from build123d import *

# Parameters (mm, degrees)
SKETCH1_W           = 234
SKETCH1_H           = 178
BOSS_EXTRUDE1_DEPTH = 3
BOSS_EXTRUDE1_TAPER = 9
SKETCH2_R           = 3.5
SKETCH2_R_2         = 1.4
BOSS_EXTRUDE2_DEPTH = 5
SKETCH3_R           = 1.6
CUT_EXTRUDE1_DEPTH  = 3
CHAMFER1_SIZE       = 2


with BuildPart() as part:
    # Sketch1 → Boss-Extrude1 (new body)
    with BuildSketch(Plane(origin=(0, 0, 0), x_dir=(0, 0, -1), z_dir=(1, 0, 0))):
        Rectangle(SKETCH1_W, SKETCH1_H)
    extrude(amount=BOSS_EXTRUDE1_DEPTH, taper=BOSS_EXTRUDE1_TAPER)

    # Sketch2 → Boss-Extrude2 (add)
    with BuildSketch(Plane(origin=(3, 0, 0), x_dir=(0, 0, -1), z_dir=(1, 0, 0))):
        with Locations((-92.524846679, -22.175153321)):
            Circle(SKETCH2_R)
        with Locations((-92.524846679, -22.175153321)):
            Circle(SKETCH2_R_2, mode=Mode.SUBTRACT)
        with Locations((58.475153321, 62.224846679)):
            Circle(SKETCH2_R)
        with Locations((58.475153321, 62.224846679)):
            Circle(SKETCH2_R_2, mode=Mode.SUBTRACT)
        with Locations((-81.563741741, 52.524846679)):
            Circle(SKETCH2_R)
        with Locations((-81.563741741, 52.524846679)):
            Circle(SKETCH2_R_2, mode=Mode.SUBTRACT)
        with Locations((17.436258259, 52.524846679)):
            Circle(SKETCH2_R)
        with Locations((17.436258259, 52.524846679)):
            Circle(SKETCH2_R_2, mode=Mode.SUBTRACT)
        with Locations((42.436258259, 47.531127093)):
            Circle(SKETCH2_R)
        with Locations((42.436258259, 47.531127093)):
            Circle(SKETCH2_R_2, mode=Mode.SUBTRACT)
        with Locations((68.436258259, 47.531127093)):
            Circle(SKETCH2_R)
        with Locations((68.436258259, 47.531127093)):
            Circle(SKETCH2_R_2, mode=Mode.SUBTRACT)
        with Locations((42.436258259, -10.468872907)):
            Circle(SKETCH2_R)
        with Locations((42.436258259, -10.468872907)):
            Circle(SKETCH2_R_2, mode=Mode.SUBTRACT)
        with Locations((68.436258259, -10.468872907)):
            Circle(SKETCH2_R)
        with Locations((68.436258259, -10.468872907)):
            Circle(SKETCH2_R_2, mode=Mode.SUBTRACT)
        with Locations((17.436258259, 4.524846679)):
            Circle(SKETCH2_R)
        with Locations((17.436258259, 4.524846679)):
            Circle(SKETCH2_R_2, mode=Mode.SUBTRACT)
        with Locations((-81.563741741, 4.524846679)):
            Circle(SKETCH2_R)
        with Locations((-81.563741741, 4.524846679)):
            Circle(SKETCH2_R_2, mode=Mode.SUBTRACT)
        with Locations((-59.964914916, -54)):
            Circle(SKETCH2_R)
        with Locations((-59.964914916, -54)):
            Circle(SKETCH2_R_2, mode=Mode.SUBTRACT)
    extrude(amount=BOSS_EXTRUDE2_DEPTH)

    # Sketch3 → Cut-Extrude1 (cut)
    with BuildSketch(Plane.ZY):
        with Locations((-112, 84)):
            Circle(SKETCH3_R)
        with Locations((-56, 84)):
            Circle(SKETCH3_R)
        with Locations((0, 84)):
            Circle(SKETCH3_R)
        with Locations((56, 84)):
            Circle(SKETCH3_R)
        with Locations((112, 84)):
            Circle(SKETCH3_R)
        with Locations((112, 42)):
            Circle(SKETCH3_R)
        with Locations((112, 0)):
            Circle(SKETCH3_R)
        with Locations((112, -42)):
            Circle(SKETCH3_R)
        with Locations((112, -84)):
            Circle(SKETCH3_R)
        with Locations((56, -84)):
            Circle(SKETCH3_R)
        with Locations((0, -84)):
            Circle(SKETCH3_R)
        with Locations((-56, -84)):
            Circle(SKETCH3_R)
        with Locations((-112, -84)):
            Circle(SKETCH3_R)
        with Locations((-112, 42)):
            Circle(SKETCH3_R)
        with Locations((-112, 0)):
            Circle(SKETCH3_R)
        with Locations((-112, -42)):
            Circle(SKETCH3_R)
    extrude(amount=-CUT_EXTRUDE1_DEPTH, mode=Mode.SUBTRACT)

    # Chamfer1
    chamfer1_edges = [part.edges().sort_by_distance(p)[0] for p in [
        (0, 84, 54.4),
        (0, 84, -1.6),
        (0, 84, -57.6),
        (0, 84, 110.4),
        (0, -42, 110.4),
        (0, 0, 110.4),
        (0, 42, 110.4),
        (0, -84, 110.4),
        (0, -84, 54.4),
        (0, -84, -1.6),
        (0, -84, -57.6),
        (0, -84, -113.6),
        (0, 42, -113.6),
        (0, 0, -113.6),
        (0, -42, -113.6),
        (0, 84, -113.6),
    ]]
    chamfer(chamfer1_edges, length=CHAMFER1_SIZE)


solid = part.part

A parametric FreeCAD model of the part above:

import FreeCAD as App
import Part
import Sketcher

V = App.Vector


def edges_at(feature, points):
    """Names of the edges that pass closest to the given points."""
    edges = feature.Shape.Edges
    near = lambda p: min(range(len(edges)), key=lambda i: edges[i].distToShape(Part.Vertex(*p))[0])
    return sorted({f"Edge{near(p) + 1}" for p in points})

doc = App.newDocument("Part")
body = doc.addObject("PartDesign::Body", "Body")

# Sketch on YZ plane
sketch1 = doc.addObject("Sketcher::SketchObject", "Sketch")
body.addObject(sketch1)
sketch1.AttachmentSupport = (doc.YZ_Plane, [""])
sketch1.MapMode = "FlatFace"
sketch1.addGeometry([
    Part.LineSegment(V(89, 117, 0), V(-89, 117, 0)),
    Part.LineSegment(V(-89, 117, 0), V(-89, -117, 0)),
    Part.LineSegment(V(-89, -117, 0), V(89, -117, 0)),
    Part.LineSegment(V(89, -117, 0), V(89, 117, 0)),
], False)
sketch1.addConstraint([
    Sketcher.Constraint("Coincident", 0, 2, 1, 1),
    Sketcher.Constraint("Coincident", 1, 2, 2, 1),
    Sketcher.Constraint("Coincident", 2, 2, 3, 1),
    Sketcher.Constraint("Coincident", 3, 2, 0, 1),
    Sketcher.Constraint("Horizontal", 0),
    Sketcher.Constraint("Vertical", 1),
    Sketcher.Constraint("Horizontal", 2),
    Sketcher.Constraint("Vertical", 3),
    Sketcher.Constraint("Symmetric", 0, 2, 2, 2, -1, 1),
    Sketcher.Constraint("DistanceX", 0, 2, 0, 1, 178.0),
    Sketcher.Constraint("DistanceY", 1, 2, 1, 1, 234.0),
])
pad1 = doc.addObject("PartDesign::Pad", "Pad")
body.addObject(pad1)
pad1.Profile = sketch1
pad1.Length = 3
pad1.TaperAngle = -9

# Sketch on YZ plane
sketch2 = doc.addObject("Sketcher::SketchObject", "Sketch001")
body.addObject(sketch2)
sketch2.AttachmentSupport = (doc.YZ_Plane, [""])
sketch2.MapMode = "FlatFace"
sketch2.AttachmentOffset = App.Placement(V(0, 0, 3), App.Rotation())
sketch2.addGeometry([
    Part.Circle(V(-22.175153, 92.524847, 0), V(0, 0, 1), 3.5),  # 0
    Part.Circle(V(-22.175153, 92.524847, 0), V(0, 0, 1), 1.4),  # 1
    Part.Circle(V(62.224847, -58.475153, 0), V(0, 0, 1), 3.5),  # 2
    Part.Circle(V(62.224847, -58.475153, 0), V(0, 0, 1), 1.4),  # 3
    Part.Circle(V(52.524847, 81.563742, 0), V(0, 0, 1), 3.5),  # 4
    Part.Circle(V(52.524847, 81.563742, 0), V(0, 0, 1), 1.4),  # 5
    Part.Circle(V(52.524847, -17.436258, 0), V(0, 0, 1), 3.5),  # 6
    Part.Circle(V(52.524847, -17.436258, 0), V(0, 0, 1), 1.4),  # 7
    Part.Circle(V(47.531127, -42.436258, 0), V(0, 0, 1), 3.5),  # 8
    Part.Circle(V(47.531127, -42.436258, 0), V(0, 0, 1), 1.4),  # 9
    Part.Circle(V(47.531127, -68.436258, 0), V(0, 0, 1), 3.5),  # 10
    Part.Circle(V(47.531127, -68.436258, 0), V(0, 0, 1), 1.4),  # 11
    Part.Circle(V(-10.468873, -42.436258, 0), V(0, 0, 1), 3.5),  # 12
    Part.Circle(V(-10.468873, -42.436258, 0), V(0, 0, 1), 1.4),  # 13
    Part.Circle(V(-10.468873, -68.436258, 0), V(0, 0, 1), 3.5),  # 14
    Part.Circle(V(-10.468873, -68.436258, 0), V(0, 0, 1), 1.4),  # 15
    Part.Circle(V(4.524847, -17.436258, 0), V(0, 0, 1), 3.5),  # 16
    Part.Circle(V(4.524847, -17.436258, 0), V(0, 0, 1), 1.4),  # 17
    Part.Circle(V(4.524847, 81.563742, 0), V(0, 0, 1), 3.5),  # 18
    Part.Circle(V(4.524847, 81.563742, 0), V(0, 0, 1), 1.4),  # 19
    Part.Circle(V(-54, 59.964915, 0), V(0, 0, 1), 3.5),  # 20
    Part.Circle(V(-54, 59.964915, 0), V(0, 0, 1), 1.4),  # 21
], False)
sketch2.addConstraint([
    Sketcher.Constraint("Coincident", 1, 3, 0, 3),
    Sketcher.Constraint("Coincident", 3, 3, 2, 3),
    Sketcher.Constraint("Coincident", 5, 3, 4, 3),
    Sketcher.Constraint("Coincident", 7, 3, 6, 3),
    Sketcher.Constraint("Coincident", 9, 3, 8, 3),
    Sketcher.Constraint("Coincident", 11, 3, 10, 3),
    Sketcher.Constraint("Coincident", 13, 3, 12, 3),
    Sketcher.Constraint("Coincident", 15, 3, 14, 3),
    Sketcher.Constraint("Coincident", 17, 3, 16, 3),
    Sketcher.Constraint("Coincident", 19, 3, 18, 3),
    Sketcher.Constraint("Coincident", 21, 3, 20, 3),
    Sketcher.Constraint("Equal", 0, 2),
    Sketcher.Constraint("Equal", 1, 3),
    Sketcher.Constraint("Equal", 2, 4),
    Sketcher.Constraint("Equal", 3, 5),
    Sketcher.Constraint("Equal", 4, 6),
    Sketcher.Constraint("Equal", 5, 7),
    Sketcher.Constraint("Equal", 6, 8),
    Sketcher.Constraint("Equal", 7, 9),
    Sketcher.Constraint("Equal", 8, 10),
    Sketcher.Constraint("Equal", 9, 11),
    Sketcher.Constraint("Equal", 10, 12),
    Sketcher.Constraint("Equal", 11, 13),
    Sketcher.Constraint("Equal", 12, 14),
    Sketcher.Constraint("Equal", 13, 15),
    Sketcher.Constraint("Equal", 14, 16),
    Sketcher.Constraint("Equal", 15, 17),
    Sketcher.Constraint("Equal", 16, 18),
    Sketcher.Constraint("Equal", 17, 19),
    Sketcher.Constraint("Equal", 18, 20),
    Sketcher.Constraint("Equal", 19, 21),
    Sketcher.Constraint("Horizontal", 9, 3, 12, 3),
    Sketcher.Constraint("Horizontal", 11, 3, 14, 3),
    Sketcher.Constraint("Horizontal", 7, 3, 16, 3),
    Sketcher.Constraint("Horizontal", 5, 3, 18, 3),
    Sketcher.Constraint("Vertical", 5, 3, 6, 3),
    Sketcher.Constraint("Vertical", 9, 3, 10, 3),
    Sketcher.Constraint("Vertical", 13, 3, 14, 3),
    Sketcher.Constraint("Vertical", 17, 3, 18, 3),
    Sketcher.Constraint("Diameter", 0, 7.0),
    Sketcher.Constraint("Diameter", 1, 2.8),
    Sketcher.Constraint("DistanceX", 20, 3, -1, 1, 54.0),
    Sketcher.Constraint("DistanceY", 2, 3, 0, 3, 151.0),
    Sketcher.Constraint("DistanceY", 6, 3, 4, 3, 99.0),
    Sketcher.Constraint("DistanceY", 8, 3, 6, 3, 25.0),
    Sketcher.Constraint("DistanceY", 10, 3, 8, 3, 26.0),
    Sketcher.Constraint("DistanceX", 12, 3, 8, 3, 58.0),
    Sketcher.Constraint("DistanceX", 16, 3, 6, 3, 48.0),
    Sketcher.Constraint("DistanceX", 0, 3, 2, 3, 84.4),
    Sketcher.Constraint("DistanceX", 0, 3, 4, 3, 74.7),
    Sketcher.Constraint("DistanceY", -1, 1, 4, 3, 81.563742),
    Sketcher.Constraint("DistanceX", 8, 3, 2, 3, 14.69372),
    Sketcher.Constraint("DistanceY", 20, 3, 0, 3, 32.559932),
    Sketcher.Constraint("DistanceX", 0, 3, -1, 1, 22.175153),
    Sketcher.Constraint("DistanceY", -1, 1, 0, 3, 92.524847),
])
pad2 = doc.addObject("PartDesign::Pad", "Pad001")
body.addObject(pad2)
pad2.Profile = sketch2
pad2.Length = 5

# Sketch on YZ plane
sketch3 = doc.addObject("Sketcher::SketchObject", "Sketch002")
body.addObject(sketch3)
sketch3.AttachmentSupport = (doc.YZ_Plane, [""])
sketch3.MapMode = "FlatFace"
sketch3.addGeometry([
    Part.Circle(V(84, -112, 0), V(0, 0, 1), 1.6),  # 0
    Part.Circle(V(84, -56, 0), V(0, 0, 1), 1.6),  # 1
    Part.Circle(V(84, 0, 0), V(0, 0, 1), 1.6),  # 2
    Part.Circle(V(84, 56, 0), V(0, 0, 1), 1.6),  # 3
    Part.Circle(V(84, 112, 0), V(0, 0, 1), 1.6),  # 4
    Part.Circle(V(42, 112, 0), V(0, 0, 1), 1.6),  # 5
    Part.Circle(V(0, 112, 0), V(0, 0, 1), 1.6),  # 6
    Part.Circle(V(-42, 112, 0), V(0, 0, 1), 1.6),  # 7
    Part.Circle(V(-84, 112, 0), V(0, 0, 1), 1.6),  # 8
    Part.Circle(V(-84, 56, 0), V(0, 0, 1), 1.6),  # 9
    Part.Circle(V(-84, 0, 0), V(0, 0, 1), 1.6),  # 10
    Part.Circle(V(-84, -56, 0), V(0, 0, 1), 1.6),  # 11
    Part.Circle(V(-84, -112, 0), V(0, 0, 1), 1.6),  # 12
    Part.Circle(V(42, -112, 0), V(0, 0, 1), 1.6),  # 13
    Part.Circle(V(0, -112, 0), V(0, 0, 1), 1.6),  # 14
    Part.Circle(V(-42, -112, 0), V(0, 0, 1), 1.6),  # 15
], False)
sketch3.addConstraint([
    Sketcher.Constraint("Equal", 0, 1),
    Sketcher.Constraint("Equal", 1, 2),
    Sketcher.Constraint("Equal", 2, 3),
    Sketcher.Constraint("Equal", 3, 4),
    Sketcher.Constraint("Equal", 4, 5),
    Sketcher.Constraint("Equal", 5, 6),
    Sketcher.Constraint("Equal", 6, 7),
    Sketcher.Constraint("Equal", 7, 8),
    Sketcher.Constraint("Equal", 8, 9),
    Sketcher.Constraint("Equal", 9, 10),
    Sketcher.Constraint("Equal", 10, 11),
    Sketcher.Constraint("Equal", 11, 12),
    Sketcher.Constraint("Equal", 12, 13),
    Sketcher.Constraint("Equal", 13, 14),
    Sketcher.Constraint("Equal", 14, 15),
    Sketcher.Constraint("Symmetric", 0, 3, 8, 3, -1, 1),
    Sketcher.Constraint("Symmetric", 1, 3, 9, 3, -1, 1),
    Sketcher.Constraint("Symmetric", 2, 3, 10, 3, -1, 1),
    Sketcher.Constraint("Symmetric", 3, 3, 11, 3, -1, 1),
    Sketcher.Constraint("Symmetric", 4, 3, 12, 3, -1, 1),
    Sketcher.Constraint("Symmetric", 7, 3, 13, 3, -1, 1),
    Sketcher.Constraint("Symmetric", 6, 3, 14, 3, -1, 1),
    Sketcher.Constraint("Symmetric", 5, 3, 15, 3, -1, 1),
    Sketcher.Constraint("Symmetric", 5, 3, 7, 3, -2),
    Sketcher.Constraint("Symmetric", 4, 3, 8, 3, -2),
    Sketcher.Constraint("Symmetric", 3, 3, 9, 3, -2),
    Sketcher.Constraint("PointOnObject", 2, 3, -1),
    Sketcher.Constraint("PointOnObject", 6, 3, -2),
    Sketcher.Constraint("Horizontal", 4, 3, 5, 3),
    Sketcher.Constraint("Horizontal", 5, 3, 6, 3),
    Sketcher.Constraint("Vertical", 0, 3, 1, 3),
    Sketcher.Constraint("Vertical", 1, 3, 2, 3),
    Sketcher.Constraint("Diameter", 0, 3.2),
    Sketcher.Constraint("DistanceX", -1, 1, 0, 3, 84.0),
    Sketcher.Constraint("DistanceY", 0, 3, -1, 1, 112.0),
    Sketcher.Constraint("DistanceY", 1, 3, -1, 1, 56.0),
    Sketcher.Constraint("DistanceX", -1, 1, 5, 3, 42.0),
])
pocket1 = doc.addObject("PartDesign::Pocket", "Pocket")
body.addObject(pocket1)
pocket1.Profile = sketch3
pocket1.Length = 3
pocket1.Reversed = True
doc.recompute()

chamfer = doc.addObject("PartDesign::Chamfer", "Chamfer")
body.addObject(chamfer)
chamfer.Base = (pocket1, edges_at(pocket1, [
    (0, 84, 54.4),
    (0, 84, -1.6),
    (0, 84, -57.6),
    (0, 84, 110.4),
    (0, -42, 110.4),
    (0, 0, 110.4),
    (0, 42, 110.4),
    (0, -84, 110.4),
    (0, -84, 54.4),
    (0, -84, -1.6),
    (0, -84, -57.6),
    (0, -84, -113.6),
    (0, 42, -113.6),
    (0, 0, -113.6),
    (0, -42, -113.6),
    (0, 84, -113.6),
]))
chamfer.Size = 2

doc.recompute()
